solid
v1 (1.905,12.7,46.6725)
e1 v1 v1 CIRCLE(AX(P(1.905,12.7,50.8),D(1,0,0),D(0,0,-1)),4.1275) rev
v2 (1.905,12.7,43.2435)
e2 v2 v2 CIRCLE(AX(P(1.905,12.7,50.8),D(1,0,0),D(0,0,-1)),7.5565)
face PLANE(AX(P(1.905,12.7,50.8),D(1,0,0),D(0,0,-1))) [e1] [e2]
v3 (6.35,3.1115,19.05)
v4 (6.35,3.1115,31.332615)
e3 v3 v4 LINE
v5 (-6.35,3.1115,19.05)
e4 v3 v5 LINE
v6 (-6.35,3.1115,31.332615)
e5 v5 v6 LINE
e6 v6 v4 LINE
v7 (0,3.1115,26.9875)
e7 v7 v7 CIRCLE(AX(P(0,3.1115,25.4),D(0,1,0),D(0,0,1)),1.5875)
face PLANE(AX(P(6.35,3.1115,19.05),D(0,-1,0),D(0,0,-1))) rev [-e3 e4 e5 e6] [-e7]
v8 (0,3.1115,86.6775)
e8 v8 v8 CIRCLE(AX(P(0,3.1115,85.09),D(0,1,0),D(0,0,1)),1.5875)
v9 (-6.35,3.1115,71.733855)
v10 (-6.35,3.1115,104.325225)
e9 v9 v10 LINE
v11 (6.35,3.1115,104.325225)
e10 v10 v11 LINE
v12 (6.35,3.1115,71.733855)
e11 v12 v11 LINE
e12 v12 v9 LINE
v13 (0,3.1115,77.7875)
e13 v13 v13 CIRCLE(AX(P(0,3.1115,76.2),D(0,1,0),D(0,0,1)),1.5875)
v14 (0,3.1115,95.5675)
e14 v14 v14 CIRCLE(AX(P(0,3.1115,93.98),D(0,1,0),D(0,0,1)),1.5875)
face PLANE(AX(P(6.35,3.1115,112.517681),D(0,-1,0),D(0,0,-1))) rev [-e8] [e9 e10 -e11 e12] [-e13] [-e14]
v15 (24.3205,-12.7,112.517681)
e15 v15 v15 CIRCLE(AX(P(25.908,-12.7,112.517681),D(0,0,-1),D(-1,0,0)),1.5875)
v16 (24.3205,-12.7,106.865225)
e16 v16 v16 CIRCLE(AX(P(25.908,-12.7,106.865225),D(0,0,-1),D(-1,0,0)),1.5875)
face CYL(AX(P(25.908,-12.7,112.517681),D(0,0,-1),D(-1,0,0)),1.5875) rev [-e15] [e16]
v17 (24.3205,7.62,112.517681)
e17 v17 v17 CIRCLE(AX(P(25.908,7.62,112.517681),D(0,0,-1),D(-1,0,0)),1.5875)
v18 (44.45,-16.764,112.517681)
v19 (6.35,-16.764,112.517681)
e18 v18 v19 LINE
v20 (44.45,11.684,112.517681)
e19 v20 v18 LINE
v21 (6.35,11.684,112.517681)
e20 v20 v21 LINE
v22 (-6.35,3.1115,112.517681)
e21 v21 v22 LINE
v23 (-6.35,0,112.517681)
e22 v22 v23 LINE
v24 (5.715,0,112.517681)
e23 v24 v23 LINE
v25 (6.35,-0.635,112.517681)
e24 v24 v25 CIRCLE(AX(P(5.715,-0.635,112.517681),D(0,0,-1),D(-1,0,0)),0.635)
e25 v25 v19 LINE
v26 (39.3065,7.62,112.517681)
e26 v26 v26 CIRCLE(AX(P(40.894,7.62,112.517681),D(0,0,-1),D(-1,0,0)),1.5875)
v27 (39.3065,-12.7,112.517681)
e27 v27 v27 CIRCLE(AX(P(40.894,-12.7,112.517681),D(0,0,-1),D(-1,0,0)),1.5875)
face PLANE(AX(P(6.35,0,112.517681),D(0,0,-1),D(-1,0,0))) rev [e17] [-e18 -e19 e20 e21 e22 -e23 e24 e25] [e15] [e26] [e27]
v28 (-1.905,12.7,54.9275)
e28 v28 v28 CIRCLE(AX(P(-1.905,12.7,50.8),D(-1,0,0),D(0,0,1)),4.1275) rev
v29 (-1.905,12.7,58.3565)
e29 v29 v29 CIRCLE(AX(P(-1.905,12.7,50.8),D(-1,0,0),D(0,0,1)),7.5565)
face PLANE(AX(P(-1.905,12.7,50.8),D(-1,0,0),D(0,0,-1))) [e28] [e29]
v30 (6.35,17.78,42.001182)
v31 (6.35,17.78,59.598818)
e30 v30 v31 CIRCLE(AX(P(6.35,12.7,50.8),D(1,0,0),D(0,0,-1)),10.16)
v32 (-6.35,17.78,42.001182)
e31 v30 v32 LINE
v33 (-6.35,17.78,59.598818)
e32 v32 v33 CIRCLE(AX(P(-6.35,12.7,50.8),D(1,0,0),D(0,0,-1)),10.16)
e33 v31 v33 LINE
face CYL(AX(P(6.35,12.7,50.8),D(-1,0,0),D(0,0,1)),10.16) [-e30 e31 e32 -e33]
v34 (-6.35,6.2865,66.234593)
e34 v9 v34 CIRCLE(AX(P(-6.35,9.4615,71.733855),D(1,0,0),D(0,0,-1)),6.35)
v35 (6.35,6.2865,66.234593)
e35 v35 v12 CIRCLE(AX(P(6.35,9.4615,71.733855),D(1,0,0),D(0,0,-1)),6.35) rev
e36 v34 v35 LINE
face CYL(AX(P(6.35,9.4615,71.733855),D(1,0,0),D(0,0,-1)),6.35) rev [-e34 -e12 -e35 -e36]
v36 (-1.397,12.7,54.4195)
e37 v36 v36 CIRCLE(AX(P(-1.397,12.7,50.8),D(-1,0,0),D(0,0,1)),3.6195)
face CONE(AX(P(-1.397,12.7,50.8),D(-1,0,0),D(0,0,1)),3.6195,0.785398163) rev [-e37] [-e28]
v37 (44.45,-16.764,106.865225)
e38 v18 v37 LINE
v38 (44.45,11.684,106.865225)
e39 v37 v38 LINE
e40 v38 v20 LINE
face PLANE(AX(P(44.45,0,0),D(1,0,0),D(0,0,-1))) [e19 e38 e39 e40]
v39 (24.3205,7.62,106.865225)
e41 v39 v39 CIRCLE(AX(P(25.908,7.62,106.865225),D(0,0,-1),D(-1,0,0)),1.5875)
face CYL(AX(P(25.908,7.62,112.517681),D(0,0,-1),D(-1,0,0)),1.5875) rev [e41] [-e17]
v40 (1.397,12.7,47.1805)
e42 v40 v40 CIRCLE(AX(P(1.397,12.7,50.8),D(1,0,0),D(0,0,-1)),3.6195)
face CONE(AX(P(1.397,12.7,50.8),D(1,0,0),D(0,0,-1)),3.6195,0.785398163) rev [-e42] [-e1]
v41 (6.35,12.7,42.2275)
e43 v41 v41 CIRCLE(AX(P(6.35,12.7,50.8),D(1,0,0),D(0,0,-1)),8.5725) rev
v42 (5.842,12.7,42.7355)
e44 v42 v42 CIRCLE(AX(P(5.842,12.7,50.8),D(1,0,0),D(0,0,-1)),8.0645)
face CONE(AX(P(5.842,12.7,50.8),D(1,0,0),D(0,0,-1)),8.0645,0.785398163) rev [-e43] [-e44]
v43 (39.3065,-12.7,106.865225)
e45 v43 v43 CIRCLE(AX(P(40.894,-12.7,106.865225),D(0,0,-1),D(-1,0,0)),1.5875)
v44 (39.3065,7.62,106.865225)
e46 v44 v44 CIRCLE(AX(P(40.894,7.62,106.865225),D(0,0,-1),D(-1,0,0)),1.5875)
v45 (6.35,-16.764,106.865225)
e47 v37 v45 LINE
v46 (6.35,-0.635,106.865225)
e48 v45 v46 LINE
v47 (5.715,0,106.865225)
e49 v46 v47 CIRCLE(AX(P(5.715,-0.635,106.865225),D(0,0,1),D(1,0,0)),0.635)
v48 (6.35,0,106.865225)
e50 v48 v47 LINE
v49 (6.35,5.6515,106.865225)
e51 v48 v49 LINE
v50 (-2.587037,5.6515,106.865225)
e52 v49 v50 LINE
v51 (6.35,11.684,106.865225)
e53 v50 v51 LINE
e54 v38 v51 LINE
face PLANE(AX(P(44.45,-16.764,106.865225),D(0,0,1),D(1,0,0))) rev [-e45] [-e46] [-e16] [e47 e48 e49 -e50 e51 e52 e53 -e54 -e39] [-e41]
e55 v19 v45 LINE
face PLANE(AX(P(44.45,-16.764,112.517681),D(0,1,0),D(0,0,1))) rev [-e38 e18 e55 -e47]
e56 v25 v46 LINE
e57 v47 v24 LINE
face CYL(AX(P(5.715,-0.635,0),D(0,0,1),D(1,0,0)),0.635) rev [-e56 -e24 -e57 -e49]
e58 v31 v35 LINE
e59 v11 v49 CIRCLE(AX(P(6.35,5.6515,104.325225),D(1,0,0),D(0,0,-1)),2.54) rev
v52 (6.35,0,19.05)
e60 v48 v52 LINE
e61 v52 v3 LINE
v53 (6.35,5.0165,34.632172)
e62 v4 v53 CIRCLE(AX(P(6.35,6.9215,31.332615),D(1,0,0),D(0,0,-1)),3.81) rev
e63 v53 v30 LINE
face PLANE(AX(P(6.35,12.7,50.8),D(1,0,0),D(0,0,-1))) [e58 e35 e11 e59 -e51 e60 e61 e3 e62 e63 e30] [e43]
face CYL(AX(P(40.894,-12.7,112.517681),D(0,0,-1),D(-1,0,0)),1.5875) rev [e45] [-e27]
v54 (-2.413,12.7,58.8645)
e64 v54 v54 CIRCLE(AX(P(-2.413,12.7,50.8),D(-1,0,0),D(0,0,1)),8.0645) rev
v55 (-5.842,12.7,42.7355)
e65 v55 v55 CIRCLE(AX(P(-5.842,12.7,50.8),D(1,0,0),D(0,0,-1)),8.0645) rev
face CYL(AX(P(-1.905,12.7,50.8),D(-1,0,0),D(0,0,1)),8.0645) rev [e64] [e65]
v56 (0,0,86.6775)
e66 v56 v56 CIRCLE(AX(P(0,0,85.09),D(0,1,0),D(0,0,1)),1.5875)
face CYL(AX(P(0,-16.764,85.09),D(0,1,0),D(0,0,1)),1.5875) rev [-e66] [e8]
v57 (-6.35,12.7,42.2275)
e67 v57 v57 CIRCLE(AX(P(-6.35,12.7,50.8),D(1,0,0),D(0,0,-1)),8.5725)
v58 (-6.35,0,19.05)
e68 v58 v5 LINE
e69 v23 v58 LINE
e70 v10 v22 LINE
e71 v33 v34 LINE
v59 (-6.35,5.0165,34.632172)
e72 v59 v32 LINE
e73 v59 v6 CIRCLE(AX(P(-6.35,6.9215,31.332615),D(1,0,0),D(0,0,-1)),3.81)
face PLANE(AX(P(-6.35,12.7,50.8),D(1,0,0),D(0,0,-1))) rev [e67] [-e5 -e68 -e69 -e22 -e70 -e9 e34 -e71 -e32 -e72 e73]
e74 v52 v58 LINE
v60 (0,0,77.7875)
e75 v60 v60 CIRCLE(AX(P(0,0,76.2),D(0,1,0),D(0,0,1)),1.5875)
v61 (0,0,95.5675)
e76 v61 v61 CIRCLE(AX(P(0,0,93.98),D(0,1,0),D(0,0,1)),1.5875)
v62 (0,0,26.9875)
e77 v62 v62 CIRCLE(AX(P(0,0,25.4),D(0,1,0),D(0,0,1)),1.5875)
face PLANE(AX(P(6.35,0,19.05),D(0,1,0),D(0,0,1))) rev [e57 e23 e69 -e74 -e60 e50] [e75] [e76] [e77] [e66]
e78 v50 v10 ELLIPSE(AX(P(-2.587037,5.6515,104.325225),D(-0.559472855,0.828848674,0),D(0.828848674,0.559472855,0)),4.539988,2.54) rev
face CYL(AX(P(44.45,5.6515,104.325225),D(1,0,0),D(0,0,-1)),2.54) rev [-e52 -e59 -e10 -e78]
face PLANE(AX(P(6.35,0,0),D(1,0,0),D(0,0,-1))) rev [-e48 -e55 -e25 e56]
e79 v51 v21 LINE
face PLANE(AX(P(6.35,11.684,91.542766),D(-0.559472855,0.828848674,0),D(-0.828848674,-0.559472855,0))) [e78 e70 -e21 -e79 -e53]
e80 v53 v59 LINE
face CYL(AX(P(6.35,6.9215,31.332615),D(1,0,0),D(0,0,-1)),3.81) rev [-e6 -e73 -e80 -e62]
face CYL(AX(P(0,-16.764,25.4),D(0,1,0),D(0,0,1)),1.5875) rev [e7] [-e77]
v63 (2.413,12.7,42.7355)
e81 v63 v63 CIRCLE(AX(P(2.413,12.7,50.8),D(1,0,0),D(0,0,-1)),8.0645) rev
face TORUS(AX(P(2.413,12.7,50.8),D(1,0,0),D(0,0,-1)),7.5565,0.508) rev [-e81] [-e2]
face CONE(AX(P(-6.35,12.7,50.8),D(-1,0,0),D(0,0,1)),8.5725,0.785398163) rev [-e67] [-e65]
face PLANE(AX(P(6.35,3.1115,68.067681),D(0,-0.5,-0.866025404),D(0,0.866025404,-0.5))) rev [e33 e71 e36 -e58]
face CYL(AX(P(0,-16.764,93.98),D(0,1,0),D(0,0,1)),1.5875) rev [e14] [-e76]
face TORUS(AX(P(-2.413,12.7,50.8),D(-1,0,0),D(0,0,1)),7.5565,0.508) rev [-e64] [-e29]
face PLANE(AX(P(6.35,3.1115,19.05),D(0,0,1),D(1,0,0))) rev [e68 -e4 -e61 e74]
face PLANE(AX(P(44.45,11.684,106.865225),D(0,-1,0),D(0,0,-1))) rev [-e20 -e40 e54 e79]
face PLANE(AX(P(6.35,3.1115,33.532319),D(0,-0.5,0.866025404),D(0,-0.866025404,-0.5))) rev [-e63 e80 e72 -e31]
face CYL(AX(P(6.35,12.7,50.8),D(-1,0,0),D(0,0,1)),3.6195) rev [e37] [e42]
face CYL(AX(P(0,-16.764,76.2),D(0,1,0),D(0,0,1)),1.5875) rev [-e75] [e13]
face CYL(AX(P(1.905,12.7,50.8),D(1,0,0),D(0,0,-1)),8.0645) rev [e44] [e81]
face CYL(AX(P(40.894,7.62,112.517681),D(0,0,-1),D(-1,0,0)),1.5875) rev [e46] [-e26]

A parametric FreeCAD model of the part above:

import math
import FreeCAD as App
import Part
import Sketcher

V = App.Vector
Q = App.Units.Quantity


def edges_at(feature, points):
    """Names of the edges that pass closest to the given points."""
    edges = feature.Shape.Edges
    near = lambda p: min(range(len(edges)), key=lambda i: edges[i].distToShape(Part.Vertex(*p))[0])
    return sorted({f"Edge{near(p) + 1}" for p in points})


def add_polygon(sketch, points):
    """Adds a closed chain of lines whose ends are joined by coincident constraints."""
    first, n = sketch.GeometryCount, len(points)
    for a, b in zip(points, points[1:] + points[:1]):
        sketch.addGeometry(Part.LineSegment(App.Vector(*a, 0), App.Vector(*b, 0)), False)
    for i in range(n):
        sketch.addConstraint(Sketcher.Constraint("Coincident", first + i, 2, first + (i + 1) % n, 1))

doc = App.newDocument("Part")
body = doc.addObject("PartDesign::Body", "Body")

# Sketch on YZ plane
sketch1 = doc.addObject("Sketcher::SketchObject", "Sketch")
body.addObject(sketch1)
sketch1.AttachmentSupport = (doc.YZ_Plane, [""])
sketch1.MapMode = "FlatFace"
sketch1.addGeometry([
    Part.LineSegment(V(0, 112.5, 0), V(0, 19.1, 0)),  # 0
    Part.LineSegment(V(0, 19.1, 0), V(3.1, 19.1, 0)),  # 1
    Part.LineSegment(V(3.1, 19.1, 0), V(3.1, 33.5, 0)),  # 2
    Part.LineSegment(V(3.1, 33.5, 0), V(17.8, 42, 0)),  # 3
    Part.ArcOfCircle(Part.Circle(V(12.7, 50.8, 0), V(0, 0, 1), 10.2), math.radians(-60), math.radians(60)),  # 4
    Part.LineSegment(V(17.8, 59.6, 0), V(3.1, 68.1, 0)),  # 5
    Part.LineSegment(V(3.1, 68.1, 0), V(3.1, 112.5, 0)),  # 6
    Part.LineSegment(V(3.1, 112.5, 0), V(0, 112.5, 0)),  # 7
    Part.Circle(V(12.7, 50.8, 0), V(0, 0, 1), 3.6),  # 8
], False)
sketch1.addConstraint([
    Sketcher.Constraint("Coincident", 0, 2, 1, 1),
    Sketcher.Constraint("Coincident", 1, 2, 2, 1),
    Sketcher.Constraint("Coincident", 2, 2, 3, 1),
    Sketcher.Constraint("Tangent", 3, 2, 4, 1),
    Sketcher.Constraint("Tangent", 4, 2, 5, 1),
    Sketcher.Constraint("Coincident", 5, 2, 6, 1),
    Sketcher.Constraint("Coincident", 6, 2, 7, 1),
    Sketcher.Constraint("Coincident", 7, 2, 0, 1),
    Sketcher.Constraint("Vertical", 0),
    Sketcher.Constraint("Horizontal", 1),
    Sketcher.Constraint("Vertical", 2),
    Sketcher.Constraint("Vertical", 6),
    Sketcher.Constraint("Horizontal", 7),
    Sketcher.Constraint("Coincident", 8, 3, 4, 3),
    Sketcher.Constraint("PointOnObject", 0, 2, -2),
    Sketcher.Constraint("Vertical", 3, 2, 4, 2),
    Sketcher.Constraint("Vertical", 2, 2, 5, 2),
    Sketcher.Constraint("Radius", 4, Q("0.4 in")),
    Sketcher.Constraint("Diameter", 8, Q("0.285 in")),
    Sketcher.Constraint("DistanceY", -1, 1, 4, 3, Q("2 in")),
    Sketcher.Constraint("Angle", 3, Q("30 deg")),
    Sketcher.Constraint("DistanceY", 6, 1, 6, 2, Q("1.75 in")),
    Sketcher.Constraint("DistanceX", -1, 1, 4, 3, Q("0.5 in")),
    Sketcher.Constraint("DistanceY", -1, 1, 0, 2, Q("0.75 in")),
    Sketcher.Constraint("DistanceX", 1, 1, 1, 2, Q("0.1225 in")),
])
pad1 = doc.addObject("PartDesign::Pad", "Pad")
body.addObject(pad1)
pad1.Profile = sketch1
pad1.Length = Q("0.5 in")
pad1.Midplane = True

# Sketch on YZ plane
sketch2 = doc.addObject("Sketcher::SketchObject", "Sketch001")
body.addObject(sketch2)
sketch2.AttachmentSupport = (doc.YZ_Plane, [""])
sketch2.MapMode = "FlatFace"
sketch2.AttachmentOffset = App.Placement(V(0, 0, 0.25 * 25.4), App.Rotation())
sketch2.addGeometry(Part.Circle(V(13, 51, 0), V(0, 0, 1), 8), False)
sketch2.addConstraint([
    Sketcher.Constraint("Diameter", 0, Q("0.635 in")),
    Sketcher.Constraint("DistanceY", -1, 1, 0, 3, Q("2 in")),
    Sketcher.Constraint("DistanceX", -1, 1, 0, 3, Q("0.5 in")),
])
pocket1 = doc.addObject("PartDesign::Pocket", "Pocket")
body.addObject(pocket1)
pocket1.Profile = sketch2
pocket1.Length = Q("0.175 in")
doc.recompute()

mirrored = doc.addObject("PartDesign::Mirrored", "Mirrored")
body.addObject(mirrored)
mirrored.Originals = [pocket1]
mirrored.MirrorPlane = (doc.YZ_Plane, [""])
body.Tip = mirrored
doc.recompute()

fillet = doc.addObject("PartDesign::Fillet", "Fillet")
body.addObject(fillet)
fillet.Base = (mirrored, edges_at(mirrored, [(0, 3.111, 68.068)]))
fillet.Radius = Q("0.25 in")
doc.recompute()

fillet2 = doc.addObject("PartDesign::Fillet", "Fillet001")
body.addObject(fillet2)
fillet2.Base = (fillet, edges_at(fillet, [(1.905, 12.7, 58.864), (-1.905, 12.7, 58.864)]))
fillet2.Radius = Q("0.02 in")
doc.recompute()

chamfer = doc.addObject("PartDesign::Chamfer", "Chamfer")
body.addObject(chamfer)
chamfer.Base = (fillet2, edges_at(fillet2, [
    (1.905, 12.7, 54.419),
    (6.35, 12.7, 58.864),
    (-6.35, 12.7, 58.864),
    (-1.905, 12.7, 54.419),
]))
chamfer.Size = Q("0.02 in")

# Sketch on YZ plane
sketch3 = doc.addObject("Sketcher::SketchObject", "Sketch002")
body.addObject(sketch3)
sketch3.AttachmentSupport = (doc.YZ_Plane, [""])
sketch3.MapMode = "FlatFace"
sketch3.AttachmentOffset = App.Placement(V(0, 0, 0.25 * 25.4), App.Rotation())
add_polygon(sketch3, [(12, 113), (-17, 113), (-17, 107), (12, 107)])  # lines 0-3
sketch3.addConstraint([
    Sketcher.Constraint("Horizontal", 0),
    Sketcher.Constraint("Vertical", 1),
    Sketcher.Constraint("Horizontal", 2),
    Sketcher.Constraint("Vertical", 3),
    Sketcher.Constraint("DistanceX", 0, 2, 0, 1, Q("1.12 in")),
    Sketcher.Constraint("DistanceX", 0, 2, -1, 1, Q("0.66 in")),
    Sketcher.Constraint("DistanceY", 1, 2, 1, 1, Q("5.652456 mm")),
    Sketcher.Constraint("DistanceY", -1, 1, 0, 2, Q("112.517681 mm")),
])
pad2 = doc.addObject("PartDesign::Pad", "Pad001")
body.addObject(pad2)
pad2.Profile = sketch3
pad2.Length = Q("1.5 in")
doc.recompute()

fillet3 = doc.addObject("PartDesign::Fillet", "Fillet002")
body.addObject(fillet3)
fillet3.Base = (pad2, edges_at(pad2, [(0, 3.111, 33.532)]))
fillet3.Radius = Q("0.15 in")

# Sketch on XY plane
sketch4 = doc.addObject("Sketcher::SketchObject", "Sketch003")
body.addObject(sketch4)
sketch4.AttachmentSupport = (doc.XY_Plane, [""])
sketch4.MapMode = "FlatFace"
sketch4.AttachmentOffset = App.Placement(V(0, 0, 112.517681), App.Rotation())
add_polygon(sketch4, [(6, 12), (-6, 3), (6, 3)])  # lines 0-2
sketch4.addConstraint([
    Sketcher.Constraint("Horizontal", 1),
    Sketcher.Constraint("Vertical", 2),
    Sketcher.Constraint("DistanceX", 1, 1, 1, 2, Q("0.5 in")),
    Sketcher.Constraint("DistanceX", 0, 2, -1, 1, Q("0.25 in")),
    Sketcher.Constraint("DistanceY", -1, 1, 2, 2, Q("0.46 in")),
    Sketcher.Constraint("DistanceY", 2, 1, 2, 2, Q("0.3375 in")),
])
pad3 = doc.addObject("PartDesign::Pad", "Pad002")
body.addObject(pad3)
pad3.Profile = sketch4
pad3.Length = 5.652456
pad3.Reversed = True

# Sketch on XY plane
sketch5 = doc.addObject("Sketcher::SketchObject", "Sketch004")
body.addObject(sketch5)
sketch5.AttachmentSupport = (doc.XY_Plane, [""])
sketch5.MapMode = "FlatFace"
sketch5.AttachmentOffset = App.Placement(V(0, 0, 106.865225), App.Rotation())
sketch5.addGeometry([
    Part.Circle(V(40.9, 7.6, 0), V(0, 0, 1), 1.6),
    Part.Circle(V(25.9, 7.6, 0), V(0, 0, 1), 1.6),
    Part.Circle(V(40.9, -12.7, 0), V(0, 0, 1), 1.6),
    Part.Circle(V(25.9, -12.7, 0), V(0, 0, 1), 1.6),
], False)
sketch5.addConstraint([
    Sketcher.Constraint("Equal", 0, 1),
    Sketcher.Constraint("Equal", 1, 2),
    Sketcher.Constraint("Equal", 2, 3),
    Sketcher.Constraint("Horizontal", 0, 3, 1, 3),
    Sketcher.Constraint("Horizontal", 2, 3, 3, 3),
    Sketcher.Constraint("Vertical", 0, 3, 2, 3),
    Sketcher.Constraint("Vertical", 1, 3, 3, 3),
    Sketcher.Constraint("Diameter", 0, Q("0.125 in")),
    Sketcher.Constraint("DistanceY", -1, 1, 0, 3, Q("0.3 in")),
    Sketcher.Constraint("DistanceY", 2, 3, -1, 1, Q("0.5 in")),
    Sketcher.Constraint("DistanceX", -1, 1, 0, 3, Q("1.61 in")),
    Sketcher.Constraint("DistanceX", -1, 1, 1, 3, Q("1.02 in")),
])
pocket2 = doc.addObject("PartDesign::Pocket", "Pocket001")
body.addObject(pocket2)
pocket2.Profile = sketch5
pocket2.Type = "ThroughAll"
pocket2.Reversed = True
doc.recompute()

fillet4 = doc.addObject("PartDesign::Fillet", "Fillet003")
body.addObject(fillet4)
fillet4.Base = (pocket2, edges_at(pocket2, [(6.35, 0, 109.691)]))
fillet4.Radius = Q("0.025 in")

# Sketch on XZ plane
sketch6 = doc.addObject("Sketcher::SketchObject", "Sketch005")
body.addObject(sketch6)
sketch6.AttachmentSupport = (doc.XZ_Plane, [""])
sketch6.MapMode = "FlatFace"
sketch6.AttachmentOffset = App.Placement(V(0, 0, -0.1225 * 25.4), App.Rotation())
sketch6.addGeometry([
    Part.Circle(V(0, 25.4, 0), V(0, 0, 1), 1.6),
    Part.Circle(V(0, 76.2, 0), V(0, 0, 1), 1.6),
    Part.Circle(V(0, 85.1, 0), V(0, 0, 1), 1.6),
    Part.Circle(V(0, 94, 0), V(0, 0, 1), 1.6),
], False)
sketch6.addConstraint([
    Sketcher.Constraint("Equal", 0, 1),
    Sketcher.Constraint("Equal", 1, 2),
    Sketcher.Constraint("Equal", 2, 3),
    Sketcher.Constraint("PointOnObject", 0, 3, -2),
    Sketcher.Constraint("PointOnObject", 1, 3, -2),
    Sketcher.Constraint("PointOnObject", 2, 3, -2),
    Sketcher.Constraint("PointOnObject", 3, 3, -2),
    Sketcher.Constraint("Diameter", 0, Q("0.125 in")),
    Sketcher.Constraint("DistanceY", -1, 1, 0, 3, Q("1 in")),
    Sketcher.Constraint("DistanceY", -1, 1, 1, 3, Q("3 in")),
    Sketcher.Constraint("DistanceY", -1, 1, 3, 3, Q("3.7 in")),
    Sketcher.Constraint("DistanceY", -1, 1, 2, 3, Q("3.35 in")),
])
pocket3 = doc.addObject("PartDesign::Pocket", "Pocket002")
body.addObject(pocket3)
pocket3.Profile = sketch6
pocket3.Type = "ThroughAll"
pocket3.Reversed = True
doc.recompute()

fillet5 = doc.addObject("PartDesign::Fillet", "Fillet004")
body.addObject(fillet5)
fillet5.Base = (pocket3, edges_at(pocket3, [(0, 3.111, 106.865)]))
fillet5.Radius = Q("0.1 in")

doc.recompute()
